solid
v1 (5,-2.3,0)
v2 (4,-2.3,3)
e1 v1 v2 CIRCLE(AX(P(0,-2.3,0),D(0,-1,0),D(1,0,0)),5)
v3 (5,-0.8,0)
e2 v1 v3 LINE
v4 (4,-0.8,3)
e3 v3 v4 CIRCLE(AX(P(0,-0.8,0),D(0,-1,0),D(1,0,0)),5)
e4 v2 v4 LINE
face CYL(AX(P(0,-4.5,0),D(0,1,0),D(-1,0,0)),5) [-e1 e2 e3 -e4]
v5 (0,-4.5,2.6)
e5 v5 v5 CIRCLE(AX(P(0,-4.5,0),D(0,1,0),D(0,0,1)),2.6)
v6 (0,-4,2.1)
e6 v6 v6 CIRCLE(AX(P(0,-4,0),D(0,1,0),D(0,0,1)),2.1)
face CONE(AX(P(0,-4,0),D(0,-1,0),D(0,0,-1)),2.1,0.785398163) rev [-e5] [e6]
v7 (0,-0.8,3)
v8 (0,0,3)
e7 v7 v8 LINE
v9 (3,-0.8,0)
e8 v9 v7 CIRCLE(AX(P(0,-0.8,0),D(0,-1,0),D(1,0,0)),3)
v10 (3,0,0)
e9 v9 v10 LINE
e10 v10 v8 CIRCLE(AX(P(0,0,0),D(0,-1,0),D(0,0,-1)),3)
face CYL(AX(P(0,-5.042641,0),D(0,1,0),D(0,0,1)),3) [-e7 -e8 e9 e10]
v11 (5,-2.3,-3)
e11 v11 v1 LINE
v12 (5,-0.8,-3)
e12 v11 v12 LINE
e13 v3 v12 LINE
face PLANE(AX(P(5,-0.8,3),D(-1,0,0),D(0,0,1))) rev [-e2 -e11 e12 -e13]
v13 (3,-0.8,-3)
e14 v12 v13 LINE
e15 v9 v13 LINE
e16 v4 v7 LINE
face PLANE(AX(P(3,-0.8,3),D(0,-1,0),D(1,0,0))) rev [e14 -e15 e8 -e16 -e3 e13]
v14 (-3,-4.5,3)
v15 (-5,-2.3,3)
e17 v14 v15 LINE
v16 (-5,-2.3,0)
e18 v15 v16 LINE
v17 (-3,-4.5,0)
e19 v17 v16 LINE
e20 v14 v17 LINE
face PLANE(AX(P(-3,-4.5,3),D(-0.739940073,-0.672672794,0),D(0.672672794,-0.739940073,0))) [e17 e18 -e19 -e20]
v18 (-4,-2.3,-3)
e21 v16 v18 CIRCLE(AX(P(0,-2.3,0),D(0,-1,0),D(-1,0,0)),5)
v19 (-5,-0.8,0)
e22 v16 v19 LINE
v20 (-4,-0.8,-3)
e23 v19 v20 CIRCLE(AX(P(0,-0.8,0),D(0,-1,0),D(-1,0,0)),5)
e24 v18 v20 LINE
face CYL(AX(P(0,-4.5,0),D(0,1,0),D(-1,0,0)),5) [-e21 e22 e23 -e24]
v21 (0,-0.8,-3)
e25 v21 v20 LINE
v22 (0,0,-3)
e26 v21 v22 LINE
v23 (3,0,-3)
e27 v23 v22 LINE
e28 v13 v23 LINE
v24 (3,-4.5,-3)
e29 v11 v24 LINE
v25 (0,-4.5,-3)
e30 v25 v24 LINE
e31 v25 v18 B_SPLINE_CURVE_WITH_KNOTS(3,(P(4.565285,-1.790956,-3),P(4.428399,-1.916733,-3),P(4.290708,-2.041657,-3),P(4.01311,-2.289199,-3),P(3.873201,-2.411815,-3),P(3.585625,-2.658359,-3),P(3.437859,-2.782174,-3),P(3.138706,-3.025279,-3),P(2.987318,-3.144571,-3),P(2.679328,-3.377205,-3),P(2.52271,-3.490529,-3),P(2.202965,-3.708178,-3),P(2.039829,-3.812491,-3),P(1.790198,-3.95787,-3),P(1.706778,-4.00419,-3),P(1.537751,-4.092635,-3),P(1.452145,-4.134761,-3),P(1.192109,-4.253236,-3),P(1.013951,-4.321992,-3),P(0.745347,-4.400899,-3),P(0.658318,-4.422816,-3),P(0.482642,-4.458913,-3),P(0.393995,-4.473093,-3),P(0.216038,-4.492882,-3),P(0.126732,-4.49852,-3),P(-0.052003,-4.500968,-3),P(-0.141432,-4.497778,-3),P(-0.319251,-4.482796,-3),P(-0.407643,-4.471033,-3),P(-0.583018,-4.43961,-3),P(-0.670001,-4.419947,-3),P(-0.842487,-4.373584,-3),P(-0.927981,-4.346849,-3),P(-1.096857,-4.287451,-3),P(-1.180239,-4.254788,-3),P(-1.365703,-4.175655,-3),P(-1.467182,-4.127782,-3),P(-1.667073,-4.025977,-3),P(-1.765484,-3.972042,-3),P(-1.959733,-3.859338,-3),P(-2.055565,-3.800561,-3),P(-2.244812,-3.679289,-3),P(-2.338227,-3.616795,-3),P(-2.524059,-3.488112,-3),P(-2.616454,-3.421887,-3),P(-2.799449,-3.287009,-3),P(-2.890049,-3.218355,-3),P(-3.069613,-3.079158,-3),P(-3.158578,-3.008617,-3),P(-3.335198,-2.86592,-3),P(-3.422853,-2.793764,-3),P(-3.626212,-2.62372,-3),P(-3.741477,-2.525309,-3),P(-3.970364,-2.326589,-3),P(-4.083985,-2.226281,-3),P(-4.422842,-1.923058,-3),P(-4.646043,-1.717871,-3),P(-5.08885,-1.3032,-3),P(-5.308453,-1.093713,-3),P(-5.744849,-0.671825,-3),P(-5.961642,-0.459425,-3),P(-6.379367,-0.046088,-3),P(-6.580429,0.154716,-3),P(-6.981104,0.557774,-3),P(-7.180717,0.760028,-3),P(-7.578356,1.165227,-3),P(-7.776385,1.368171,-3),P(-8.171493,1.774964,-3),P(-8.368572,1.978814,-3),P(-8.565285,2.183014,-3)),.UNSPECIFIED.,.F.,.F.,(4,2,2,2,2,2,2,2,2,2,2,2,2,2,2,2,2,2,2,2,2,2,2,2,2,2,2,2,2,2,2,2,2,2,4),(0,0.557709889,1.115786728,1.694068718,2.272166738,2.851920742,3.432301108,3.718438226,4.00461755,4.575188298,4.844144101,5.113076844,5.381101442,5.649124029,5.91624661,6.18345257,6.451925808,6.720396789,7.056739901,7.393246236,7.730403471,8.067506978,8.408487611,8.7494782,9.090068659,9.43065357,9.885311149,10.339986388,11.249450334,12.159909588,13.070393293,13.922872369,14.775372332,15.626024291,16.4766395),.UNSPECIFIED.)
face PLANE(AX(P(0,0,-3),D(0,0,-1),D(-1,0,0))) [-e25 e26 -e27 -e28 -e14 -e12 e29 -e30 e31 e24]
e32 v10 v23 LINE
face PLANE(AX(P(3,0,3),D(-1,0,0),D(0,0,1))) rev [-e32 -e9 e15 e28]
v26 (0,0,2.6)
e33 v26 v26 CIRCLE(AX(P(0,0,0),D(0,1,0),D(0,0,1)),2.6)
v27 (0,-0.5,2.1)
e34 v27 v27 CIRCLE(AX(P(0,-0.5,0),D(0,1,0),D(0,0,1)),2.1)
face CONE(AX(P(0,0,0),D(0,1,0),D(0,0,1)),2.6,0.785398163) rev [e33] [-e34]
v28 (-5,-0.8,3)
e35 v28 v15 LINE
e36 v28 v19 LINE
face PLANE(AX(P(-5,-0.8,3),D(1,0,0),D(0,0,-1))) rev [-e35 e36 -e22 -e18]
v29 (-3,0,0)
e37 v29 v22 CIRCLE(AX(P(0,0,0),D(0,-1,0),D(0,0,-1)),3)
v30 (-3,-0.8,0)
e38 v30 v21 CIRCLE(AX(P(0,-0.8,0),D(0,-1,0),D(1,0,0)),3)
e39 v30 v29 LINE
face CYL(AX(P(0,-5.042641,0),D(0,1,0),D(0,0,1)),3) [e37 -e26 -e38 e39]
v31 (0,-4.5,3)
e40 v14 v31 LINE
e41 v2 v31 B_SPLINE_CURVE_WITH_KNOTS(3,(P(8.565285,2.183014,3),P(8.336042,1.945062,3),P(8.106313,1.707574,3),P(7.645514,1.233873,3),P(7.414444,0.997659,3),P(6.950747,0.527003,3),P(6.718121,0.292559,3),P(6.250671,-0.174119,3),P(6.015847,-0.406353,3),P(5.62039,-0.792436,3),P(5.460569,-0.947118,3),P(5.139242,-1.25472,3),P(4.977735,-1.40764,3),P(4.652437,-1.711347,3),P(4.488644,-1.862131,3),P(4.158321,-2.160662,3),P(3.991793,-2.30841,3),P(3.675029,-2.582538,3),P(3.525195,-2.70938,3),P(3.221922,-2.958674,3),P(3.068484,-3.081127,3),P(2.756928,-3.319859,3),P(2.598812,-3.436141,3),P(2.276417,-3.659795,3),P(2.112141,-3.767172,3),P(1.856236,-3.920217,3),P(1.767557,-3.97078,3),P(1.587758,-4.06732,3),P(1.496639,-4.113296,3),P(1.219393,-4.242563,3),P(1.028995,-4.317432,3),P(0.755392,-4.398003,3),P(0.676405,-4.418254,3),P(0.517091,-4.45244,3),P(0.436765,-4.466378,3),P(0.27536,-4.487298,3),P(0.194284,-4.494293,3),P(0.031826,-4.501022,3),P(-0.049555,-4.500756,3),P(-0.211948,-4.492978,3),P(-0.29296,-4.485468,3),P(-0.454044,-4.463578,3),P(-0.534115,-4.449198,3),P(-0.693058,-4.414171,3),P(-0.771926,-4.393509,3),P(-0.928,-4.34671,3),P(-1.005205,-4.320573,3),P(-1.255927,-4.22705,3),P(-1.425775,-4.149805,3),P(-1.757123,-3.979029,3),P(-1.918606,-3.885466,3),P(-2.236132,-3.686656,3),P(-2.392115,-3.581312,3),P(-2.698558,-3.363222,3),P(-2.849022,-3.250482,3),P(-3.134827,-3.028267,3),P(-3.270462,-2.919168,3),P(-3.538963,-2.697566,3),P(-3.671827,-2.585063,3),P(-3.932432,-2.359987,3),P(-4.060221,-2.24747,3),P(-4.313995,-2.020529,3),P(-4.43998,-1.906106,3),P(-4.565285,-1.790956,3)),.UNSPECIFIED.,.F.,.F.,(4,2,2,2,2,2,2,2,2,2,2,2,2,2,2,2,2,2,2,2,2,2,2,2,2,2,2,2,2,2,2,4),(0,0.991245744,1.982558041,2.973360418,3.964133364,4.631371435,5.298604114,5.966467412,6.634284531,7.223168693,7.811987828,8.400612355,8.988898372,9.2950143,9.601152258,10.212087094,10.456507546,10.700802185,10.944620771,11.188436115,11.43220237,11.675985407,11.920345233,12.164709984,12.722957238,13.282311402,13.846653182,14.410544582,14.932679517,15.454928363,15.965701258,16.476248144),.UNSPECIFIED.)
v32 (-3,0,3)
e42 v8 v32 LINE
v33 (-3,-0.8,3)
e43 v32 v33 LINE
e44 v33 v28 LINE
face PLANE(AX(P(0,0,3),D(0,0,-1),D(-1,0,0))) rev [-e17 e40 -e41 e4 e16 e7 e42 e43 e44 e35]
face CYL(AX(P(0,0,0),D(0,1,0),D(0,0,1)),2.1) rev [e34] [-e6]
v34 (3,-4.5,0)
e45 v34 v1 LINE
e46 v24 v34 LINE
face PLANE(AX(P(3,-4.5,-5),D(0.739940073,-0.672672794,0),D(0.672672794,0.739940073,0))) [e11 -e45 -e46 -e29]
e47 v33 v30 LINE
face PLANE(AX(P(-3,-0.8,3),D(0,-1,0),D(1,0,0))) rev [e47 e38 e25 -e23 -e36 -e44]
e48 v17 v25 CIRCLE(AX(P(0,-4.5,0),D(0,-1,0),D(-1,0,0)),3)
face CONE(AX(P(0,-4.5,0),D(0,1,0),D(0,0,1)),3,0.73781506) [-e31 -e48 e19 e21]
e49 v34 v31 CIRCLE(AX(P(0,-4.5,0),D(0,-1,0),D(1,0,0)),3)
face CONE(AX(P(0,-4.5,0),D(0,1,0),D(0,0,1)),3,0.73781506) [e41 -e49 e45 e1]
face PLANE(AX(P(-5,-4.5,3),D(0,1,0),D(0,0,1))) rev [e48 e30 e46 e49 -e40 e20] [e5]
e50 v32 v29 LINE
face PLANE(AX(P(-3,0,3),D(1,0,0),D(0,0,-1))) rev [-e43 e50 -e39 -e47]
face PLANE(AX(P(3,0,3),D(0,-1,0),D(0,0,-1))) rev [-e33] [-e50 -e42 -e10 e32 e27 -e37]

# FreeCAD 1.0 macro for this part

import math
import FreeCAD as App
import Part
import Sketcher

V = App.Vector
Q = App.Units.Quantity


def add_polygon(sketch, points):
    """Adds a closed chain of lines whose ends are joined by coincident constraints."""
    first, n = sketch.GeometryCount, len(points)
    for a, b in zip(points, points[1:] + points[:1]):
        sketch.addGeometry(Part.LineSegment(App.Vector(*a, 0), App.Vector(*b, 0)), False)
    for i in range(n):
        sketch.addConstraint(Sketcher.Constraint("Coincident", first + i, 2, first + (i + 1) % n, 1))

doc = App.newDocument("Part")
body = doc.addObject("PartDesign::Body", "Body")

sketch1 = doc.addObject("Sketcher::SketchObject", "Sketch")
body.addObject(sketch1)
sketch1.AttachmentSupport = (doc.XY_Plane, [""])
sketch1.MapMode = "FlatFace"
add_polygon(sketch1, [(3, 0), (-3, 0), (-3, -0.8), (-5, -0.8), (-5, -4.5), (5, -4.5), (5, -0.8), (3, -0.8)])
sketch1.addConstraint(Sketcher.Constraint("Horizontal", 0))
sketch1.addConstraint(Sketcher.Constraint("Vertical", 1))
sketch1.addConstraint(Sketcher.Constraint("Horizontal", 2))
sketch1.addConstraint(Sketcher.Constraint("Vertical", 3))
sketch1.addConstraint(Sketcher.Constraint("Horizontal", 4))
sketch1.addConstraint(Sketcher.Constraint("Vertical", 5))
sketch1.addConstraint(Sketcher.Constraint("Horizontal", 6))
sketch1.addConstraint(Sketcher.Constraint("Vertical", 7))
sketch1.addConstraint(Sketcher.Constraint("Symmetric", 0, 2, 7, 2, -1, 1))
sketch1.addConstraint(Sketcher.Constraint("Symmetric", 2, 2, 5, 2, -2))
sketch1.addConstraint(Sketcher.Constraint("DistanceX", 0, 2, 0, 1, Q("6 mm")))
sketch1.addConstraint(Sketcher.Constraint("DistanceX", 2, 2, 2, 1, Q("2 mm")))
sketch1.addConstraint(Sketcher.Constraint("DistanceY", 1, 2, 1, 1, Q("0.8 mm")))
sketch1.addConstraint(Sketcher.Constraint("DistanceY", 3, 2, 3, 1, Q("3.7 mm")))
pad1 = doc.addObject("PartDesign::Pad", "Pad")
body.addObject(pad1)
pad1.Profile = sketch1
pad1.Length = 6
pad1.Midplane = True

sketch2 = doc.addObject("Sketcher::SketchObject", "Sketch001")
body.addObject(sketch2)
sketch2.AttachmentSupport = (doc.YZ_Plane, [""])
sketch2.MapMode = "FlatFace"
add_polygon(sketch2, [(-4.5, 0), (0, 0), (0, 2.6), (-0.5, 2.1), (-4, 2.1), (-4.5, 2.6)])
sketch2.addConstraint(Sketcher.Constraint("Horizontal", 0))
sketch2.addConstraint(Sketcher.Constraint("Vertical", 1))
sketch2.addConstraint(Sketcher.Constraint("Horizontal", 3))
sketch2.addConstraint(Sketcher.Constraint("Vertical", 5))
sketch2.addConstraint(Sketcher.Constraint("Coincident", 0, 2, -1, 1))
sketch2.addConstraint(Sketcher.Constraint("Perpendicular", 2, 4))
sketch2.addConstraint(Sketcher.Constraint("Horizontal", 1, 2, 4, 2))
sketch2.addConstraint(Sketcher.Constraint("Equal", 2, 4))
sketch2.addConstraint(Sketcher.Constraint("DistanceX", 0, 1, 0, 2, Q("4.5 mm")))
sketch2.addConstraint(Sketcher.Constraint("DistanceX", 3, 2, 3, 1, Q("3.5 mm")))
sketch2.addConstraint(Sketcher.Constraint("DistanceY", 1, 1, 1, 2, Q("2.6 mm")))
groove = doc.addObject("PartDesign::Groove", "Groove")
body.addObject(groove)
groove.Profile = sketch2
groove.ReferenceAxis = (sketch2, ["H_Axis"])
groove.Angle = 360

sketch3 = doc.addObject("Sketcher::SketchObject", "Sketch002")
body.addObject(sketch3)
sketch3.AttachmentSupport = (doc.XZ_Plane, [""])
sketch3.MapMode = "FlatFace"
sketch3.addGeometry(Part.LineSegment(V(-3, -3, 0), V(-3, 0, 0)), False)
sketch3.addGeometry(Part.ArcOfCircle(Part.Circle(V(0, 0, 0), V(0, 0, 1), 3), math.radians(180), math.radians(270)), False)
sketch3.addGeometry(Part.LineSegment(V(0, -3, 0), V(-3, -3, 0)), False)
sketch3.addGeometry(Part.LineSegment(V(0, 3, 0), V(3, 3, 0)), False)
sketch3.addGeometry(Part.LineSegment(V(3, 3, 0), V(3, 0, 0)), False)
sketch3.addGeometry(Part.ArcOfCircle(Part.Circle(V(0, 0, 0), V(0, 0, 1), 3), math.radians(0), math.radians(90)), False)
sketch3.addConstraint(Sketcher.Constraint("Tangent", 0, 2, 1, 1))
sketch3.addConstraint(Sketcher.Constraint("Tangent", 1, 2, 2, 1))
sketch3.addConstraint(Sketcher.Constraint("Coincident", 2, 2, 0, 1))
sketch3.addConstraint(Sketcher.Constraint("Coincident", 3, 2, 4, 1))
sketch3.addConstraint(Sketcher.Constraint("Tangent", 4, 2, 5, 1))
sketch3.addConstraint(Sketcher.Constraint("Tangent", 5, 2, 3, 1))
sketch3.addConstraint(Sketcher.Constraint("Vertical", 0))
sketch3.addConstraint(Sketcher.Constraint("Horizontal", 2))
sketch3.addConstraint(Sketcher.Constraint("Horizontal", 3))
sketch3.addConstraint(Sketcher.Constraint("Vertical", 4))
sketch3.addConstraint(Sketcher.Constraint("Coincident", 1, 3, -1, 1))
sketch3.addConstraint(Sketcher.Constraint("Coincident", 5, 3, -1, 1))
sketch3.addConstraint(Sketcher.Constraint("Equal", 1, 5))
sketch3.addConstraint(Sketcher.Constraint("Radius", 1, Q("3 mm")))
pocket1 = doc.addObject("PartDesign::Pocket", "Pocket")
body.addObject(pocket1)
pocket1.Profile = sketch3
pocket1.Length = 0.8
pocket1.Reversed = True

sketch4 = doc.addObject("Sketcher::SketchObject", "Sketch003")
body.addObject(sketch4)
sketch4.AttachmentSupport = (doc.XZ_Plane, [""])
sketch4.MapMode = "FlatFace"
sketch4.AttachmentOffset = App.Placement(V(0, 0, 0.8), App.Rotation())
sketch4.addGeometry(Part.LineSegment(V(-5, -3, 0), V(-5, 0, 0)), False)
sketch4.addGeometry(Part.ArcOfCircle(Part.Circle(V(0, 0, 0), V(0, 0, 1), 5), math.radians(-180), math.radians(-143)), False)
sketch4.addGeometry(Part.LineSegment(V(-4, -3, 0), V(-5, -3, 0)), False)
sketch4.addGeometry(Part.LineSegment(V(5, 3, 0), V(5, 0, 0)), False)
sketch4.addGeometry(Part.ArcOfCircle(Part.Circle(V(0, 0, 0), V(0, 0, 1), 5), math.radians(0), math.radians(37)), False)
sketch4.addGeometry(Part.LineSegment(V(4, 3, 0), V(5, 3, 0)), False)
sketch4.addConstraint(Sketcher.Constraint("Tangent", 0, 2, 1, 1))
sketch4.addConstraint(Sketcher.Constraint("Coincident", 1, 2, 2, 1))
sketch4.addConstraint(Sketcher.Constraint("Coincident", 2, 2, 0, 1))
sketch4.addConstraint(Sketcher.Constraint("Tangent", 3, 2, 4, 1))
sketch4.addConstraint(Sketcher.Constraint("Coincident", 4, 2, 5, 1))
sketch4.addConstraint(Sketcher.Constraint("Coincident", 5, 2, 3, 1))
sketch4.addConstraint(Sketcher.Constraint("Vertical", 0))
sketch4.addConstraint(Sketcher.Constraint("Horizontal", 2))
sketch4.addConstraint(Sketcher.Constraint("Vertical", 3))
sketch4.addConstraint(Sketcher.Constraint("Horizontal", 5))
sketch4.addConstraint(Sketcher.Constraint("Coincident", 1, 3, -1, 1))
sketch4.addConstraint(Sketcher.Constraint("Coincident", 4, 3, -1, 1))
sketch4.addConstraint(Sketcher.Constraint("Equal", 1, 4))
sketch4.addConstraint(Sketcher.Constraint("Equal", 2, 5))
sketch4.addConstraint(Sketcher.Constraint("Radius", 1, Q("5 mm")))
sketch4.addConstraint(Sketcher.Constraint("DistanceX", 2, 2, 2, 1, Q("1 mm")))
pocket2 = doc.addObject("PartDesign::Pocket", "Pocket001")
body.addObject(pocket2)
pocket2.Profile = sketch4
pocket2.Type = "ThroughAll"
pocket2.Reversed = True

sketch5 = doc.addObject("Sketcher::SketchObject", "Sketch004")
body.addObject(sketch5)
sketch5.AttachmentSupport = (doc.XY_Plane, [""])
sketch5.MapMode = "FlatFace"
sketch5.AttachmentOffset = App.Placement(V(0, 0, 3), App.Rotation())
add_polygon(sketch5, [(-5, -2.3), (-5, -4.5), (-3, -4.5)])
sketch5.addConstraint(Sketcher.Constraint("Vertical", 0))
sketch5.addConstraint(Sketcher.Constraint("Horizontal", 1))
sketch5.addConstraint(Sketcher.Constraint("DistanceX", 1, 1, 1, 2, Q("2 mm")))
sketch5.addConstraint(Sketcher.Constraint("DistanceY", 0, 2, 0, 1, Q("2.2 mm")))
sketch5.addConstraint(Sketcher.Constraint("DistanceX", 0, 2, -1, 1, Q("5 mm")))
sketch5.addConstraint(Sketcher.Constraint("DistanceY", 0, 2, -1, 1, Q("4.5 mm")))

sketch6 = doc.addObject("Sketcher::SketchObject", "Sketch005")
body.addObject(sketch6)
sketch6.AttachmentSupport = (doc.XZ_Plane, [""])
sketch6.MapMode = "FlatFace"
sketch6.AttachmentOffset = App.Placement(V(0, 0, 4.5), App.Rotation())
sketch6.addGeometry(Part.LineSegment(V(0, 5, 0), V(-5, 5, 0)), False)
sketch6.addGeometry(Part.LineSegment(V(-5, 5, 0), V(-5, 0, 0)), False)
sketch6.addGeometry(Part.ArcOfCircle(Part.Circle(V(0, 0, 0), V(0, 0, 1), 5), math.radians(180), math.radians(270)), False)
sketch6.addGeometry(Part.LineSegment(V(0, -5, 0), V(5, -5, 0)), False)
sketch6.addGeometry(Part.LineSegment(V(5, -5, 0), V(5, 0, 0)), False)
sketch6.addGeometry(Part.ArcOfCircle(Part.Circle(V(0, 0, 0), V(0, 0, 1), 5), math.radians(0), math.radians(90)), False)
sketch6.addConstraint(Sketcher.Constraint("Coincident", 0, 2, 1, 1))
sketch6.addConstraint(Sketcher.Constraint("Tangent", 1, 2, 2, 1))
sketch6.addConstraint(Sketcher.Constraint("Tangent", 2, 2, 3, 1))
sketch6.addConstraint(Sketcher.Constraint("Coincident", 3, 2, 4, 1))
sketch6.addConstraint(Sketcher.Constraint("Tangent", 4, 2, 5, 1))
sketch6.addConstraint(Sketcher.Constraint("Tangent", 5, 2, 0, 1))
sketch6.addConstraint(Sketcher.Constraint("Horizontal", 0))
sketch6.addConstraint(Sketcher.Constraint("Vertical", 1))
sketch6.addConstraint(Sketcher.Constraint("Horizontal", 3))
sketch6.addConstraint(Sketcher.Constraint("Vertical", 4))
sketch6.addConstraint(Sketcher.Constraint("Coincident", 2, 3, -1, 1))
sketch6.addConstraint(Sketcher.Constraint("Coincident", 5, 3, -1, 1))
sketch6.addConstraint(Sketcher.Constraint("Equal", 2, 5))
sketch6.addConstraint(Sketcher.Constraint("Radius", 2, Q("5 mm")))
doc.recompute()

subtractivepipe = doc.addObject("PartDesign::SubtractivePipe", "SubtractivePipe")
body.addObject(subtractivepipe)
subtractivepipe.Profile = sketch5
subtractivepipe.Spine = (sketch6, ["Edge1", "Edge2", "Edge3", "Edge4", "Edge5", "Edge6"])
subtractivepipe.Transition = "Right corner"

doc.recompute()
